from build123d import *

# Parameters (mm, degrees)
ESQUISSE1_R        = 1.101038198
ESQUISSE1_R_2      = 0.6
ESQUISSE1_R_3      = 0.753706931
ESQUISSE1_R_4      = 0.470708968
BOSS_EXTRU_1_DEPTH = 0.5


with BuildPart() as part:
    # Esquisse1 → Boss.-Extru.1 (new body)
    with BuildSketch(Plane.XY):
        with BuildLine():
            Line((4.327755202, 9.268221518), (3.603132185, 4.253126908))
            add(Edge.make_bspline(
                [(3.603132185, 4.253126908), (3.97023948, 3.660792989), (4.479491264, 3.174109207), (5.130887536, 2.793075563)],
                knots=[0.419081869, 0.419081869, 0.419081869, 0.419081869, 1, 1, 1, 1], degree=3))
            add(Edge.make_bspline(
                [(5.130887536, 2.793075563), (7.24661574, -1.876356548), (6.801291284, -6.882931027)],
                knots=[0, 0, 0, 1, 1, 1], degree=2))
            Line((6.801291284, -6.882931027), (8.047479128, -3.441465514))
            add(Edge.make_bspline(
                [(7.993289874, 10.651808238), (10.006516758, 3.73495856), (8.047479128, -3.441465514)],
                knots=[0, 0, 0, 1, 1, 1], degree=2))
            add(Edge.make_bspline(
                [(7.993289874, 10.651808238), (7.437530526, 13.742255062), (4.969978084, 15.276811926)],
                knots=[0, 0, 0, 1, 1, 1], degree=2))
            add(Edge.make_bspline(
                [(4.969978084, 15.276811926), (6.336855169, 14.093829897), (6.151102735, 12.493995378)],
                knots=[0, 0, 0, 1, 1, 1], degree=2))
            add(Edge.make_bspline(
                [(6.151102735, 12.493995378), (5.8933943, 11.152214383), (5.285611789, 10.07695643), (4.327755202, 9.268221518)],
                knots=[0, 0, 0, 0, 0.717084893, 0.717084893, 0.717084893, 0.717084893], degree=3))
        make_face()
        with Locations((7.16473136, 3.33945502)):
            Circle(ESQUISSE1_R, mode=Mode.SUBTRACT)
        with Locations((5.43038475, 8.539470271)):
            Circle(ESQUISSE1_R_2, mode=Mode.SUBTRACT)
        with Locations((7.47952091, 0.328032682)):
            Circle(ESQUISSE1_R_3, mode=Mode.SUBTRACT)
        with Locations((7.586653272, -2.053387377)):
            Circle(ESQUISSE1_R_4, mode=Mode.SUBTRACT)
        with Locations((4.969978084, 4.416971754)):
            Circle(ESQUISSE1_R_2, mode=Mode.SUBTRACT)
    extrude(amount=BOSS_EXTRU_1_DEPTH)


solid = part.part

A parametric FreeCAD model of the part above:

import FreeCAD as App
import Part
import Sketcher

V = App.Vector
Q = App.Units.Quantity

doc = App.newDocument("Part")
body = doc.addObject("PartDesign::Body", "Body")

# Sketch on XY plane
sketch1 = body.newObject("Sketcher::SketchObject", "Sketch")
sketch1.AttachmentSupport = (doc.getObject("XY_Plane"), [""])
sketch1.MapMode = "FlatFace"
sketch1.addGeometry(Part.LineSegment(V(4.327755, 9.268222, 0), V(3.603132, 4.253127, 0)), False)
sketch1.addGeometry(Part.BSplineCurve([V(3.603132, 4.253127, 0), V(3.970239, 3.660793, 0), V(4.479491, 3.174109, 0), V(5.130888, 2.793076, 0)], [4, 4], [0.419081869, 1], False, 3, [1, 1, 1, 1], False), False)
sketch1.addGeometry(Part.BSplineCurve([V(5.130888, 2.793076, 0), V(7.246616, -1.876357, 0), V(6.801291, -6.882931, 0)], [3, 3], [0, 1], False, 2, [1, 1, 1], False), False)
sketch1.addGeometry(Part.LineSegment(V(6.801291, -6.882931, 0), V(8.047479, -3.441466, 0)), False)
sketch1.addGeometry(Part.BSplineCurve([V(7.99329, 10.651808, 0), V(10.006517, 3.734959, 0), V(8.047479, -3.441466, 0)], [3, 3], [0, 1], False, 2, [1, 1, 1], False), False)
sketch1.addGeometry(Part.BSplineCurve([V(7.99329, 10.651808, 0), V(7.437531, 13.742255, 0), V(4.969978, 15.276812, 0)], [3, 3], [0, 1], False, 2, [1, 1, 1], False), False)
sketch1.addGeometry(Part.BSplineCurve([V(4.969978, 15.276812, 0), V(6.336855, 14.09383, 0), V(6.151103, 12.493995, 0)], [3, 3], [0, 1], False, 2, [1, 1, 1], False), False)
sketch1.addGeometry(Part.BSplineCurve([V(6.151103, 12.493995, 0), V(5.893394, 11.152214, 0), V(5.285612, 10.076956, 0), V(4.327755, 9.268222, 0)], [4, 4], [0, 0.717084893], False, 3, [1, 1, 1, 1], False), False)
sketch1.addGeometry(Part.Circle(V(7.586653, -2.053387, 0), V(0, 0, 1), 0.470709), False)
sketch1.addGeometry(Part.Circle(V(7.479521, 0.328033, 0), V(0, 0, 1), 0.753707), False)
sketch1.addGeometry(Part.Circle(V(4.969978, 4.416972, 0), V(0, 0, 1), 0.6), False)
sketch1.addGeometry(Part.Circle(V(5.430385, 8.53947, 0), V(0, 0, 1), 0.6), False)
sketch1.addGeometry(Part.Circle(V(7.164731, 3.339455, 0), V(0, 0, 1), 1.101038), False)
sketch1.addConstraint(Sketcher.Constraint("Block", 1))
sketch1.addConstraint(Sketcher.Constraint("Block", 2))
sketch1.addConstraint(Sketcher.Constraint("Block", 4))
sketch1.addConstraint(Sketcher.Constraint("Block", 5))
sketch1.addConstraint(Sketcher.Constraint("Block", 6))
sketch1.addConstraint(Sketcher.Constraint("Block", 7))
sketch1.addConstraint(Sketcher.Constraint("Coincident", 0, 2, 1, 1))
sketch1.addConstraint(Sketcher.Constraint("Coincident", 2, 2, 3, 1))
sketch1.addConstraint(Sketcher.Constraint("Coincident", 3, 2, 4, 2))
sketch1.addConstraint(Sketcher.Constraint("Coincident", 7, 2, 0, 1))
sketch1.addConstraint(Sketcher.Constraint("Equal", 10, 11))
sketch1.addConstraint(Sketcher.Constraint("Diameter", 10, Q("1.2 mm")))
sketch1.addConstraint(Sketcher.Constraint("Diameter", 8, Q("0.941418 mm")))
sketch1.addConstraint(Sketcher.Constraint("Diameter", 9, Q("1.507414 mm")))
sketch1.addConstraint(Sketcher.Constraint("Diameter", 12, Q("2.202076 mm")))
sketch1.addConstraint(Sketcher.Constraint("DistanceY", 10, 3, 11, 3, Q("4.122499 mm")))
sketch1.addConstraint(Sketcher.Constraint("DistanceX", 0, 2, 12, 3, Q("3.561599 mm")))
sketch1.addConstraint(Sketcher.Constraint("DistanceY", 3, 2, 9, 3, Q("3.769498 mm")))
sketch1.addConstraint(Sketcher.Constraint("DistanceX", 10, 3, 3, 2, Q("3.077501 mm")))
sketch1.addConstraint(Sketcher.Constraint("DistanceX", -1, 1, 9, 3, Q("7.479521 mm")))
sketch1.addConstraint(Sketcher.Constraint("DistanceY", -1, 1, 10, 3, Q("4.416972 mm")))
sketch1.addConstraint(Sketcher.Constraint("DistanceY", 8, 3, 9, 3, Q("2.38142 mm")))
sketch1.addConstraint(Sketcher.Constraint("DistanceX", 11, 3, 8, 3, Q("2.156269 mm")))
sketch1.addConstraint(Sketcher.Constraint("DistanceX", 12, 3, 8, 3, Q("0.421922 mm")))
sketch1.addConstraint(Sketcher.Constraint("DistanceY", 12, 3, 0, 2, Q("0.913672 mm")))
pad1 = body.newObject("PartDesign::Pad", "Pad")
pad1.Profile = sketch1
pad1.Length = 0.5

doc.recompute()
